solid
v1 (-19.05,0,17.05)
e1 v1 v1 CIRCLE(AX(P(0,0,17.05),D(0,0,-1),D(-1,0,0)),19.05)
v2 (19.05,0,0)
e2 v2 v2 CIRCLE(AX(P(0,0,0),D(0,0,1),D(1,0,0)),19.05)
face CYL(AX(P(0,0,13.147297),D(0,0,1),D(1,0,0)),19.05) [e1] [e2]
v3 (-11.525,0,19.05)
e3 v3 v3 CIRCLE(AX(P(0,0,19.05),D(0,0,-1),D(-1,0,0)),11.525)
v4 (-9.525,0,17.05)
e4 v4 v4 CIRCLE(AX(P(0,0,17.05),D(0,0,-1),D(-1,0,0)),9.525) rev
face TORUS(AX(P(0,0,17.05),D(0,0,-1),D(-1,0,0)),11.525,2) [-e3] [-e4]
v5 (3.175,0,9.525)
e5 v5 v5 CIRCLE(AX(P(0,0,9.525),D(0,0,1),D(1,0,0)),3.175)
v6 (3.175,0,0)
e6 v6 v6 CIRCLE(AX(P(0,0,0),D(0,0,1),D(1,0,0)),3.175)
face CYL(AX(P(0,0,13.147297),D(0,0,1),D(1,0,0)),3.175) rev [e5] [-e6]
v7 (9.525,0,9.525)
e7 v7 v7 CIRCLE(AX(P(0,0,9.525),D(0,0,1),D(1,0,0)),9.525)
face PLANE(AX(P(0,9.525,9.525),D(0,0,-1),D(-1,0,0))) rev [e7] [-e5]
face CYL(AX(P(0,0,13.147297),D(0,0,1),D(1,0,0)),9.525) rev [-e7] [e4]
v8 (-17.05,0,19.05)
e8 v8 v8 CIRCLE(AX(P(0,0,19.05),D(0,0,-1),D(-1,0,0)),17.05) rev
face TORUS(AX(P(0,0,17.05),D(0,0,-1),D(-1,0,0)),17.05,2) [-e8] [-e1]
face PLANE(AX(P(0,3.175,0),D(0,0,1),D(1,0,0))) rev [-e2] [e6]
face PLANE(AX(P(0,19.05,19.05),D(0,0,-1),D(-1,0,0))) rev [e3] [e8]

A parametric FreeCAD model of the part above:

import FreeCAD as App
import Part
import Sketcher

V = App.Vector
Q = App.Units.Quantity


def edges_at(feature, points):
    """Names of the edges that pass closest to the given points."""
    edges = feature.Shape.Edges
    near = lambda p: min(range(len(edges)), key=lambda i: edges[i].distToShape(Part.Vertex(*p))[0])
    return sorted({f"Edge{near(p) + 1}" for p in points})

doc = App.newDocument("Part")
body = doc.addObject("PartDesign::Body", "Body")

# Sketch on YZ plane
sketch1 = doc.addObject("Sketcher::SketchObject", "Sketch")
body.addObject(sketch1)
sketch1.AttachmentSupport = (doc.YZ_Plane, [""])
sketch1.MapMode = "FlatFace"
sketch1.addGeometry(Part.LineSegment(V(3, 0, 0), V(19, 0, 0)), False)
sketch1.addGeometry(Part.LineSegment(V(19, 0, 0), V(19, 19, 0)), False)
sketch1.addGeometry(Part.LineSegment(V(19, 19, 0), V(10, 19, 0)), False)
sketch1.addGeometry(Part.LineSegment(V(10, 19, 0), V(10, 10, 0)), False)
sketch1.addGeometry(Part.LineSegment(V(10, 10, 0), V(3, 10, 0)), False)
sketch1.addGeometry(Part.LineSegment(V(3, 10, 0), V(3, 0, 0)), False)
sketch1.addConstraint(Sketcher.Constraint("Coincident", 0, 2, 1, 1))
sketch1.addConstraint(Sketcher.Constraint("Coincident", 1, 2, 2, 1))
sketch1.addConstraint(Sketcher.Constraint("Coincident", 2, 2, 3, 1))
sketch1.addConstraint(Sketcher.Constraint("Coincident", 3, 2, 4, 1))
sketch1.addConstraint(Sketcher.Constraint("Coincident", 4, 2, 5, 1))
sketch1.addConstraint(Sketcher.Constraint("Coincident", 5, 2, 0, 1))
sketch1.addConstraint(Sketcher.Constraint("Horizontal", 0))
sketch1.addConstraint(Sketcher.Constraint("Vertical", 1))
sketch1.addConstraint(Sketcher.Constraint("Horizontal", 2))
sketch1.addConstraint(Sketcher.Constraint("Vertical", 3))
sketch1.addConstraint(Sketcher.Constraint("Horizontal", 4))
sketch1.addConstraint(Sketcher.Constraint("Vertical", 5))
sketch1.addConstraint(Sketcher.Constraint("PointOnObject", 0, 2, -1))
sketch1.addConstraint(Sketcher.Constraint("Equal", 2, 3))
sketch1.addConstraint(Sketcher.Constraint("Equal", 3, 5))
sketch1.addConstraint(Sketcher.Constraint("DistanceX", 4, 2, 4, 1, Q("0.25 in")))
sketch1.addConstraint(Sketcher.Constraint("DistanceY", 1, 1, 1, 2, Q("0.75 in")))
sketch1.addConstraint(Sketcher.Constraint("DistanceX", -1, 1, 0, 2, Q("0.75 in")))
revolution = doc.addObject("PartDesign::Revolution", "Revolution")
body.addObject(revolution)
revolution.Profile = sketch1
revolution.ReferenceAxis = (sketch1, ["V_Axis"])
revolution.Angle = 360
doc.recompute()

fillet = doc.addObject("PartDesign::Fillet", "Fillet")
body.addObject(fillet)
fillet.Base = (revolution, edges_at(revolution, [(0, -9.525, 19.05), (0, -19.05, 19.05)]))
fillet.Radius = 2

doc.recompute()
